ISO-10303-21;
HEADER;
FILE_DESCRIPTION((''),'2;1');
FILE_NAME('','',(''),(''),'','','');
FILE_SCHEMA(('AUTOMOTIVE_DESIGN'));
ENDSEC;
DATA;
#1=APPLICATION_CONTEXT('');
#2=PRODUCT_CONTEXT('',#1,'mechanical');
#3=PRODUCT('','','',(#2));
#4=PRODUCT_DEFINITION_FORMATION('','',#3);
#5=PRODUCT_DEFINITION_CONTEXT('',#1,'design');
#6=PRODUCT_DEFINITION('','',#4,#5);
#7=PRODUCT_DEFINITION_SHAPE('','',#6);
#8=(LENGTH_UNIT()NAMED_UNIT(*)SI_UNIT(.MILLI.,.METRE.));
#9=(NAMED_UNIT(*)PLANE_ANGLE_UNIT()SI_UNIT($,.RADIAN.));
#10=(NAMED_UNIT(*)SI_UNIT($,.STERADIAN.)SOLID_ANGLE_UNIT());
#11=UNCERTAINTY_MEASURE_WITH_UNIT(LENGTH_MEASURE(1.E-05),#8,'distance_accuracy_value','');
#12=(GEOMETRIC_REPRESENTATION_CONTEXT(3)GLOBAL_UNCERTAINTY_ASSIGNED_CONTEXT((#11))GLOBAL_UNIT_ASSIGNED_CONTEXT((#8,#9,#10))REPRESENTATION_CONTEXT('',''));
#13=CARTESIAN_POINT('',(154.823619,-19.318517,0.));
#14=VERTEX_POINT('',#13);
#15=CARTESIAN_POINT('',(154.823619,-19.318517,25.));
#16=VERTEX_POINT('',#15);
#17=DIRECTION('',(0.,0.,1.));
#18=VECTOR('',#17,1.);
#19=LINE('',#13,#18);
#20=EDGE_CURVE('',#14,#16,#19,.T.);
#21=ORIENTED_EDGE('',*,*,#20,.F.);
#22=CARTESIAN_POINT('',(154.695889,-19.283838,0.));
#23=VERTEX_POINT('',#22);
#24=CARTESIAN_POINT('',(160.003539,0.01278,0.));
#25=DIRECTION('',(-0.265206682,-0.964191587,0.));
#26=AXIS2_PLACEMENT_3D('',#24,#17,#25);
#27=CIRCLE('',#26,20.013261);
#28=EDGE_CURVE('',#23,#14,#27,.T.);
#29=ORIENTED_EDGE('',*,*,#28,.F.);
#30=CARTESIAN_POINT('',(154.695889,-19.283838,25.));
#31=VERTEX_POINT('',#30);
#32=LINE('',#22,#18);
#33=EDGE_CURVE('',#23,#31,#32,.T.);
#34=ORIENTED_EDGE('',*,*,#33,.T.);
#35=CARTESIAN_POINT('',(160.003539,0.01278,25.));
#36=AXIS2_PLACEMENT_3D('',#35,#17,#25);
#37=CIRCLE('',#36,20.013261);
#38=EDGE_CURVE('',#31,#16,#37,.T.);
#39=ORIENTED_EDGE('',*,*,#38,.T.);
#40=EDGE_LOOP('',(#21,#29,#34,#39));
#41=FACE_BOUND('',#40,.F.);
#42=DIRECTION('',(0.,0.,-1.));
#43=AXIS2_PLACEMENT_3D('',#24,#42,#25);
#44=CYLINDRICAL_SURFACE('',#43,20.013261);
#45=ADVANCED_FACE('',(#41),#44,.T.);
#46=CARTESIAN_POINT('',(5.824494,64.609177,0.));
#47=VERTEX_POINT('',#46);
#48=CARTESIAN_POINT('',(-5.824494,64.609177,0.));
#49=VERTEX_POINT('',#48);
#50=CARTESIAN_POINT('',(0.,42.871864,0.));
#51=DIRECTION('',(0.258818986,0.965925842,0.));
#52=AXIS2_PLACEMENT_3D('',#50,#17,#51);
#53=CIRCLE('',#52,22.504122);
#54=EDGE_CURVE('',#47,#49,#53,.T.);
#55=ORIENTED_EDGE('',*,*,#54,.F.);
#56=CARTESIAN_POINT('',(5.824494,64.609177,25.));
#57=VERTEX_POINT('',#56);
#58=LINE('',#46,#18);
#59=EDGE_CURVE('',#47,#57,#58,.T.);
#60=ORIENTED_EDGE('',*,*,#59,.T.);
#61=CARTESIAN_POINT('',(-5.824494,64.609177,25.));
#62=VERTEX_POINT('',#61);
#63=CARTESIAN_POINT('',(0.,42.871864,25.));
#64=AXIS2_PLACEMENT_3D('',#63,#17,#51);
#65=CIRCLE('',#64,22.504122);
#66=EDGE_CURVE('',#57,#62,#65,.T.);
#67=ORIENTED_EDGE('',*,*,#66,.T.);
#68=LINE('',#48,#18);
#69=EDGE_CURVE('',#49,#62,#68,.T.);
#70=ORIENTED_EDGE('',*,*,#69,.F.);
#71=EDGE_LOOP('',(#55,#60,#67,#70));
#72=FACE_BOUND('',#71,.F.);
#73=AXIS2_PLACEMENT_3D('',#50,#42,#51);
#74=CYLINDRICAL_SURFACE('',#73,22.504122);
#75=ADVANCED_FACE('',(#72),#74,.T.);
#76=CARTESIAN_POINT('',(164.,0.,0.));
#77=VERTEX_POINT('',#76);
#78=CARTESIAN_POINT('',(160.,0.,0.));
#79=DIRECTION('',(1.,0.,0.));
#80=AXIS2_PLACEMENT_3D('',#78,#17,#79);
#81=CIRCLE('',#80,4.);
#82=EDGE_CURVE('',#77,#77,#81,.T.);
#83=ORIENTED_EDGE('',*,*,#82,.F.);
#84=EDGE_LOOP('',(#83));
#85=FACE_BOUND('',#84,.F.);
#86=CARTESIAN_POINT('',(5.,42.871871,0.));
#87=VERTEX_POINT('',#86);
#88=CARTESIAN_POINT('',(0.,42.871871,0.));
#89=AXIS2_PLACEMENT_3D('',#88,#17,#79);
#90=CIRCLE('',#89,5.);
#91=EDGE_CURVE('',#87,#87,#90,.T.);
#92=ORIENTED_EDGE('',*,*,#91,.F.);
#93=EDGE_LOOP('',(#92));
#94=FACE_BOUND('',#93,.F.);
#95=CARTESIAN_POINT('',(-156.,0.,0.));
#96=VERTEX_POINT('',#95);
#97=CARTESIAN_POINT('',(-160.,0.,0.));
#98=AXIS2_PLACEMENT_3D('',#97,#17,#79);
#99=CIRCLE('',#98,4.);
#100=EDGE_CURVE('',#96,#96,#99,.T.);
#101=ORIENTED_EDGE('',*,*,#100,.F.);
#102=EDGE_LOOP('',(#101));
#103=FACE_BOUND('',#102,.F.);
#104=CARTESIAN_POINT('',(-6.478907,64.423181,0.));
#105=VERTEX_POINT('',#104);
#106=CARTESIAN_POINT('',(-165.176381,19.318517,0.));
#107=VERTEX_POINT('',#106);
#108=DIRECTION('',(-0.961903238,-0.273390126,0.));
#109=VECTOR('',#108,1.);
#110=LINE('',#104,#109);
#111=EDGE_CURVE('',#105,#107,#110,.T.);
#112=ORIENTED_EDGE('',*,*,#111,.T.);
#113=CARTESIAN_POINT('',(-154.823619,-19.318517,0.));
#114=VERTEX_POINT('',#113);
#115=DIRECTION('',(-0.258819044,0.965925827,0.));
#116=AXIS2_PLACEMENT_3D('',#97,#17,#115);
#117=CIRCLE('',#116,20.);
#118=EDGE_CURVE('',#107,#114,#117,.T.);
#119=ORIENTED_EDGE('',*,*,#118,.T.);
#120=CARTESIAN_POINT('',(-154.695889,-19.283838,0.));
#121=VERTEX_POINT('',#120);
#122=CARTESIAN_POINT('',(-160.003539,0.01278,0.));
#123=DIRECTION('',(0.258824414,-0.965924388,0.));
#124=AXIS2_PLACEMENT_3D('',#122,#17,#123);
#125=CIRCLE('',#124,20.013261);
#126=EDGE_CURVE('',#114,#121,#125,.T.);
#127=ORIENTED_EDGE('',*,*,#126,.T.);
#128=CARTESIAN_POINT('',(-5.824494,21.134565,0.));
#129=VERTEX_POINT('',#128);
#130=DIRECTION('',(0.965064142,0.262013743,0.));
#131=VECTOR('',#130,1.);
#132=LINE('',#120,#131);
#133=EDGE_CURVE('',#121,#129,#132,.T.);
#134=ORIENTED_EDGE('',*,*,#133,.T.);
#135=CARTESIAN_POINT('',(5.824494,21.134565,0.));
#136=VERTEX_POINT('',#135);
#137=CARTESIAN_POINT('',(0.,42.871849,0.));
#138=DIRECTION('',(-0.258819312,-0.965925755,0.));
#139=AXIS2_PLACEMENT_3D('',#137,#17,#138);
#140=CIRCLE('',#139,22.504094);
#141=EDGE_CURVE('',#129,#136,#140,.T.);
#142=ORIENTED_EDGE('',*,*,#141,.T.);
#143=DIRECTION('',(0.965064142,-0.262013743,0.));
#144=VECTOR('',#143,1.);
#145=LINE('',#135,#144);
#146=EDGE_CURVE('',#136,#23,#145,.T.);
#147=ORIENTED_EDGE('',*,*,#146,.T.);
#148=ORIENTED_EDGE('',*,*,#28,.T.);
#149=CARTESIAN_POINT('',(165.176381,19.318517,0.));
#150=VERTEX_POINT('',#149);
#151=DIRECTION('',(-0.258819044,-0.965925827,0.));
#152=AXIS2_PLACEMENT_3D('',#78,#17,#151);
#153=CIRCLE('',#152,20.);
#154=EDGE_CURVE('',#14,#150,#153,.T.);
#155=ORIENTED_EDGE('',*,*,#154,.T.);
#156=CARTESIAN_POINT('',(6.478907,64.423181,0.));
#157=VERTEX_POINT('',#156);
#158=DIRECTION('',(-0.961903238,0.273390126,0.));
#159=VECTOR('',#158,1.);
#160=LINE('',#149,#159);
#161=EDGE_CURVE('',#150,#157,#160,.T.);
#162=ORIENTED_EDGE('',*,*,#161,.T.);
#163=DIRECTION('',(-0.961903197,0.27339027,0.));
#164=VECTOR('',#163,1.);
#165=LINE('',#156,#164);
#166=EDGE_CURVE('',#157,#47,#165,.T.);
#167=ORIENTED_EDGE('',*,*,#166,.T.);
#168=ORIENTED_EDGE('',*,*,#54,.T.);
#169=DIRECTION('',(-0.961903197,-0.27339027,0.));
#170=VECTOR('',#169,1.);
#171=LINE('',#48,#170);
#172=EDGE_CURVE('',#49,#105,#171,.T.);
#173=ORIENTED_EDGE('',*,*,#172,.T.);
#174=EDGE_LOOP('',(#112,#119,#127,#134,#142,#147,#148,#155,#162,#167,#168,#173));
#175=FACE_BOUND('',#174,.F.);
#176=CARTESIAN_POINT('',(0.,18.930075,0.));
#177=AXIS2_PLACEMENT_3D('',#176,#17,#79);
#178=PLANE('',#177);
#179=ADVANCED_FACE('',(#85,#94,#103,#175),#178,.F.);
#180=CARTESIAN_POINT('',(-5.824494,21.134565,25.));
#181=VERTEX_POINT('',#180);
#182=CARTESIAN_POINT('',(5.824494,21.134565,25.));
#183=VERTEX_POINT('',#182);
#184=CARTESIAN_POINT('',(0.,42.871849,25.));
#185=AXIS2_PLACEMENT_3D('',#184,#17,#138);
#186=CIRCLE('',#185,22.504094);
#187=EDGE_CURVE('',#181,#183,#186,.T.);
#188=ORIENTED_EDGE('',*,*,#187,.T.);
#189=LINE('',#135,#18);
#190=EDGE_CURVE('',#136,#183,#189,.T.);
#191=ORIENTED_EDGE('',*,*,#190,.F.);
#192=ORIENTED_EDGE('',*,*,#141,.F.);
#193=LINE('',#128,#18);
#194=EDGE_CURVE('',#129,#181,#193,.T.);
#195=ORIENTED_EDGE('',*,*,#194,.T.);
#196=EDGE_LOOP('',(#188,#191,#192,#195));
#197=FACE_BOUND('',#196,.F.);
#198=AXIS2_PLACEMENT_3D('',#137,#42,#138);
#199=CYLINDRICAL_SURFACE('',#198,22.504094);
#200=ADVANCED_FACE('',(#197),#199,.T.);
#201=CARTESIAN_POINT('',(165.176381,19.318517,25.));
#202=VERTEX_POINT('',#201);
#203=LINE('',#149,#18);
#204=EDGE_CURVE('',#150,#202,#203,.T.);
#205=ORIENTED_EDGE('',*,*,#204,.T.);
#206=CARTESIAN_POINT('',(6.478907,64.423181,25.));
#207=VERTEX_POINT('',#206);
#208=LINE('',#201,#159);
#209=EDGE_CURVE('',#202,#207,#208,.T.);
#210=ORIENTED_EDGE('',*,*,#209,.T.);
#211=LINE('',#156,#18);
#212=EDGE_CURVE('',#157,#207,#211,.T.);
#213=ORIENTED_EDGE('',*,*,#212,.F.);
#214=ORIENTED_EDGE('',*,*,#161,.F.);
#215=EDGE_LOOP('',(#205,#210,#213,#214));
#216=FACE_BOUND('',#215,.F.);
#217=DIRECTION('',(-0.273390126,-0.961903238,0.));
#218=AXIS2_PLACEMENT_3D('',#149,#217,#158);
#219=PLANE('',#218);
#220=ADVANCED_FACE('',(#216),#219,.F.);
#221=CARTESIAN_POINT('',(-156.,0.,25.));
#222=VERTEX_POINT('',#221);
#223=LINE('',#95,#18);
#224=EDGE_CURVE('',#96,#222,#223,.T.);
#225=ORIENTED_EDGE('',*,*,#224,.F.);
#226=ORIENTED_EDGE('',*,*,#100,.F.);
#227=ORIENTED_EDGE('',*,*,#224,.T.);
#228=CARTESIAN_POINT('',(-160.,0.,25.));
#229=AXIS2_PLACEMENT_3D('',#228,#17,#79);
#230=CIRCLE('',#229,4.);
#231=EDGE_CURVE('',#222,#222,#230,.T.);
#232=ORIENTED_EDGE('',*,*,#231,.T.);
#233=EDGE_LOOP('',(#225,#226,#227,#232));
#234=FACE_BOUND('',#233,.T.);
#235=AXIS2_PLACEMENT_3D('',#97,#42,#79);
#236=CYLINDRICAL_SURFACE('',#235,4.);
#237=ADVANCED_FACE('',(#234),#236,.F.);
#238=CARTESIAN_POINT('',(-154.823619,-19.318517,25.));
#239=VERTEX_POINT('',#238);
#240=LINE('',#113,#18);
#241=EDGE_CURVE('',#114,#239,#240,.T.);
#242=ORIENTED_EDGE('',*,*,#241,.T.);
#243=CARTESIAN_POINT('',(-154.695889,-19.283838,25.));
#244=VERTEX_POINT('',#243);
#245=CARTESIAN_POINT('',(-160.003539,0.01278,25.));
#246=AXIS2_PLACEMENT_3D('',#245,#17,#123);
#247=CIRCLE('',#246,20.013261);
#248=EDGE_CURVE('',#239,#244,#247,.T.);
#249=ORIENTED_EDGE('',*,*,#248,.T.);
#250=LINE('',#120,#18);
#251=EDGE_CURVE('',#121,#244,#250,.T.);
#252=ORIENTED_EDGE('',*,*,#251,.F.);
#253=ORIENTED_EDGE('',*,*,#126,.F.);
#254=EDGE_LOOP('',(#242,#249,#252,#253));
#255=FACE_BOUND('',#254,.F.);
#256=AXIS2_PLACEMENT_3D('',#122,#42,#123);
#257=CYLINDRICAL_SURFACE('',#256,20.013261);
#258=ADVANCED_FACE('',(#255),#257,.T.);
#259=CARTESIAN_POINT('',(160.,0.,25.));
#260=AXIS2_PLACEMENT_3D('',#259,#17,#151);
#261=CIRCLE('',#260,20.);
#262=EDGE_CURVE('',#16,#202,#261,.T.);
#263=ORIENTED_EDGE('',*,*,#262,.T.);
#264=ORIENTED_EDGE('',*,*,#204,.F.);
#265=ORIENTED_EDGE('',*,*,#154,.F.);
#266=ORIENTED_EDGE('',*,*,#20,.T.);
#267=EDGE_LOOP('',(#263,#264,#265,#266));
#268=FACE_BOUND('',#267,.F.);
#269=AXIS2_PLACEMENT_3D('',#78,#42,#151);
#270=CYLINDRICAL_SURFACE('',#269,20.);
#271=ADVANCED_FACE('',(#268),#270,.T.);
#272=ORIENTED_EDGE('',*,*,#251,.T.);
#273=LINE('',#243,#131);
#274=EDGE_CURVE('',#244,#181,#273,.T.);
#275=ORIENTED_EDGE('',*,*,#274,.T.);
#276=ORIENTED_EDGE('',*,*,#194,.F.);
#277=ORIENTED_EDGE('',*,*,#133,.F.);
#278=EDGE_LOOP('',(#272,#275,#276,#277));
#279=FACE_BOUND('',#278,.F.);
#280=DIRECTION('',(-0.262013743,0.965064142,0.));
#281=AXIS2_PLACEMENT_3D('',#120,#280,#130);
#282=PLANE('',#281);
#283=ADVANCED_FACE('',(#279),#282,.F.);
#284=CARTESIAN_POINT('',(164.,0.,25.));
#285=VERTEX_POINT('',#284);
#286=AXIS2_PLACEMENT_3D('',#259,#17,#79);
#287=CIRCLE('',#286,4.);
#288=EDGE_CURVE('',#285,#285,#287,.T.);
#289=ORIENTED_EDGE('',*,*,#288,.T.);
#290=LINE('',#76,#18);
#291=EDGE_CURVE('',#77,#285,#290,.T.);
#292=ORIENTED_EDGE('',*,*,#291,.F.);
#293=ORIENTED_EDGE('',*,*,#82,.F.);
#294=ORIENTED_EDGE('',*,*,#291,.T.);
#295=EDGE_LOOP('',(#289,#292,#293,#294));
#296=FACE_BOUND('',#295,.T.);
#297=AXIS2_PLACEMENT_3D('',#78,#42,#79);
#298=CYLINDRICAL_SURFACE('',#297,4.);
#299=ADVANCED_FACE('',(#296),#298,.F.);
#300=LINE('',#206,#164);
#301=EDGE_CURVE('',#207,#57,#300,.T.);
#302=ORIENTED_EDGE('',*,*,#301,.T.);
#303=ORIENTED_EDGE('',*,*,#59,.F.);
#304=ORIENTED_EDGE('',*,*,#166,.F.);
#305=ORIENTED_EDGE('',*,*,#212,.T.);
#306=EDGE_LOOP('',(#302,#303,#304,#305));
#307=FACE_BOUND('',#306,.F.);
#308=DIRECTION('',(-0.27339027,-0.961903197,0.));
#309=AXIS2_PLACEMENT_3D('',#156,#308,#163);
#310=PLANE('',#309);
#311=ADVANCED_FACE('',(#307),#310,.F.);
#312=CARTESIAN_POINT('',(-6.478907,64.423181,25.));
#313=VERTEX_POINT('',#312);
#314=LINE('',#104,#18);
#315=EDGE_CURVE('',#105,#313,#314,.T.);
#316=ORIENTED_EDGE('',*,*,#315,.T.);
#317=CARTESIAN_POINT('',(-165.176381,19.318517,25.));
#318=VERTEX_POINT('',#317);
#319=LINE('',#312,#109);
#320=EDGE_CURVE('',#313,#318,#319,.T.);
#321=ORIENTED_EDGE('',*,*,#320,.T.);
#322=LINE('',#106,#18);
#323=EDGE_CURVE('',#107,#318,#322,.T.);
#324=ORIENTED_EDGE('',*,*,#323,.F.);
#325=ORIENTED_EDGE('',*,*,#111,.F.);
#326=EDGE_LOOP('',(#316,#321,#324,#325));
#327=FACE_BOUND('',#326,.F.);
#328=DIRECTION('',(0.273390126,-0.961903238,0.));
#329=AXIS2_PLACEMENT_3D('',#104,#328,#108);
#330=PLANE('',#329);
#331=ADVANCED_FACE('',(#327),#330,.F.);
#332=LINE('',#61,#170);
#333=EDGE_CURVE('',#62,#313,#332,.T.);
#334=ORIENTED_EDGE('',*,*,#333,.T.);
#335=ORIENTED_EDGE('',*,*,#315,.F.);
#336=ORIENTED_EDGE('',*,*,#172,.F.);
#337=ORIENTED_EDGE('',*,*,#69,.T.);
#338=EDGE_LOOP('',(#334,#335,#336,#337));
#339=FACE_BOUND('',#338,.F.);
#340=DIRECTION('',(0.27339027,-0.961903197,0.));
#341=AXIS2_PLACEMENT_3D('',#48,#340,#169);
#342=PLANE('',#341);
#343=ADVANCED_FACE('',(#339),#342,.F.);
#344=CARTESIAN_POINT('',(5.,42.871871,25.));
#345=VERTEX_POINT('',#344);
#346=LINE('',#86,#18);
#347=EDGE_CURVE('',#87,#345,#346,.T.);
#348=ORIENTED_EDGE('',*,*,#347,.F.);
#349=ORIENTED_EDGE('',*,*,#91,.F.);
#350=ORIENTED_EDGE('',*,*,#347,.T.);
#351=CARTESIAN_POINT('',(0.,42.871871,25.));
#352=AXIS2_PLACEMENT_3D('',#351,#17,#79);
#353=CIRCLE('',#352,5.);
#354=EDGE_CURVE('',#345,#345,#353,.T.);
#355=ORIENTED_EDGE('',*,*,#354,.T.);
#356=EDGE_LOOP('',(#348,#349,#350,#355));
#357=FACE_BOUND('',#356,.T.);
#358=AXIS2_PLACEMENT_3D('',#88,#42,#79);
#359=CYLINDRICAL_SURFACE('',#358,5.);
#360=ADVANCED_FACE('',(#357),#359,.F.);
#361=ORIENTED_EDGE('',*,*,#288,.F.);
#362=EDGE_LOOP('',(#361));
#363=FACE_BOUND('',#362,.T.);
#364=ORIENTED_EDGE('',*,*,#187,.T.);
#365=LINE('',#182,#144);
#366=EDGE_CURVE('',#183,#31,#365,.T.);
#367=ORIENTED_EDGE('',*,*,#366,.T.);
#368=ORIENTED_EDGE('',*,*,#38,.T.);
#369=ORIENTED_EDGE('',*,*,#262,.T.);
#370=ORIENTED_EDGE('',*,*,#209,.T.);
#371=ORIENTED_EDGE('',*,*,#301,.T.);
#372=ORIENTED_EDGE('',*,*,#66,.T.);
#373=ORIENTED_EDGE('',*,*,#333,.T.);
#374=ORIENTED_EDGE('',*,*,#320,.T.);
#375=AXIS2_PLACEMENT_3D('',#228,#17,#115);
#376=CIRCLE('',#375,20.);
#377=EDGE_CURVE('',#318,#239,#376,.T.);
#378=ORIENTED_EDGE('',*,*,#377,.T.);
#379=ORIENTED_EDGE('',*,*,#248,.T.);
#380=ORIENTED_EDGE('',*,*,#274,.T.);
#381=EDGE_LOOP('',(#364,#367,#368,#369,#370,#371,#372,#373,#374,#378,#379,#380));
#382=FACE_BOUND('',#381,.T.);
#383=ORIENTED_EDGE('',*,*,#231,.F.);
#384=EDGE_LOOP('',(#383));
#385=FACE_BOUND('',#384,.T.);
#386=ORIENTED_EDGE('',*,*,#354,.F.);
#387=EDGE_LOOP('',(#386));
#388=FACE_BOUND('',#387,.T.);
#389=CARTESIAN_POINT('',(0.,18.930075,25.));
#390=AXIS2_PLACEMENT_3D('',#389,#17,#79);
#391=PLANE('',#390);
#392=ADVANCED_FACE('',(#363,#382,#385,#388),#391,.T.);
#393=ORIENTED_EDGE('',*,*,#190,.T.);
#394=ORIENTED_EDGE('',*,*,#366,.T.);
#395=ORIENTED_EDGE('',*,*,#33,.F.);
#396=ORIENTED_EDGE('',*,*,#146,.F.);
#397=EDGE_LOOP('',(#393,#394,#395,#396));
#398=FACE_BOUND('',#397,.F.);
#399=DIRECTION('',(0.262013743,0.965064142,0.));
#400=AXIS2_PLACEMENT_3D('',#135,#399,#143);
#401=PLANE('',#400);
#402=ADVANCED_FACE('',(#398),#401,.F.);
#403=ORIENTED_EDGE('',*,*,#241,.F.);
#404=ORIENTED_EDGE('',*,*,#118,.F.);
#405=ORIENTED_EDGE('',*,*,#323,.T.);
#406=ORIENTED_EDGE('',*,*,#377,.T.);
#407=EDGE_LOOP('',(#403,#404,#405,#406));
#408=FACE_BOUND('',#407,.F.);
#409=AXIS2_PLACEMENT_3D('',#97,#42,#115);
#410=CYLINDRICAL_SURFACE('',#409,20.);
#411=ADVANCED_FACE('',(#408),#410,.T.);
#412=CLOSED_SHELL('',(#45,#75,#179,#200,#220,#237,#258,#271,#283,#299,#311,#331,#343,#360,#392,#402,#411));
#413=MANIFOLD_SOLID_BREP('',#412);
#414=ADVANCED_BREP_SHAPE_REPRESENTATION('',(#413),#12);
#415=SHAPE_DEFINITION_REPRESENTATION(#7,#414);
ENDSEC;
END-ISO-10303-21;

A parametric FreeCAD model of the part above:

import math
import FreeCAD as App
import Part
import Sketcher
from FreeCAD import Vector
Q = App.Units.Quantity

doc = App.newDocument("Part")
body = doc.addObject("PartDesign::Body", "Body")

sketch1 = body.newObject("Sketcher::SketchObject", "Sketch")
sketch1.AttachmentSupport = (doc.getObject("XY_Plane"), [""])
sketch1.MapMode = "FlatFace"
sketch1.addGeometry([
    Part.LineSegment(Vector(-6.478907, 64.423181, 0), Vector(-165.176381, 19.318517, 0)),
    Part.ArcOfCircle(Part.Circle(Vector(-160, 0, 0), Vector(0, 0, 1), 20), math.radians(105), math.radians(285)),
    Part.ArcOfCircle(Part.Circle(Vector(-160.003539, 0.01278, 0), Vector(0, 0, 1), 20.013261), math.radians(-74.999682), math.radians(-74.620766)),
    Part.LineSegment(Vector(-154.695889, -19.283838, 0), Vector(-5.824494, 21.134565, 0)),
    Part.ArcOfCircle(Part.Circle(Vector(0, 42.871849, 0), Vector(0, 0, 1), 22.504094), math.radians(-105.000016), math.radians(-74.999984)),
    Part.LineSegment(Vector(5.824494, 21.134565, 0), Vector(154.695889, -19.283838, 0)),
    Part.ArcOfCircle(Part.Circle(Vector(160.003539, 0.01278, 0), Vector(0, 0, 1), 20.013261), math.radians(-105.379234), math.radians(-105.000318)),
    Part.ArcOfCircle(Part.Circle(Vector(160, 0, 0), Vector(0, 0, 1), 20), math.radians(-105), math.radians(75)),
    Part.LineSegment(Vector(165.176381, 19.318517, 0), Vector(6.478907, 64.423181, 0)),
    Part.LineSegment(Vector(6.478907, 64.423181, 0), Vector(5.824494, 64.609177, 0)),
    Part.ArcOfCircle(Part.Circle(Vector(0, 42.871864, 0), Vector(0, 0, 1), 22.504122), math.radians(75.000004), math.radians(104.999996)),
    Part.LineSegment(Vector(-5.824494, 64.609177, 0), Vector(-6.478907, 64.423181, 0)),
    Part.Circle(Vector(-160, 0, 0), Vector(0, 0, 1), 4),
    Part.Circle(Vector(160, 0, 0), Vector(0, 0, 1), 4),
    Part.Circle(Vector(0, 42.871871, 0), Vector(0, 0, 1), 5),
], False)
sketch1.addConstraint([
    Sketcher.Constraint("Coincident", 0, 2, 1, 1),
    Sketcher.Constraint("Coincident", 1, 2, 2, 1),
    Sketcher.Constraint("Coincident", 2, 2, 3, 1),
    Sketcher.Constraint("Coincident", 3, 2, 4, 1),
    Sketcher.Constraint("Coincident", 4, 2, 5, 1),
    Sketcher.Constraint("Coincident", 5, 2, 6, 1),
    Sketcher.Constraint("Coincident", 6, 2, 7, 1),
    Sketcher.Constraint("Coincident", 7, 2, 8, 1),
    Sketcher.Constraint("Coincident", 8, 2, 9, 1),
    Sketcher.Constraint("Coincident", 9, 2, 10, 1),
    Sketcher.Constraint("Coincident", 10, 2, 11, 1),
    Sketcher.Constraint("Coincident", 11, 2, 0, 1),
    Sketcher.Constraint("Coincident", 12, 3, 1, 3),
    Sketcher.Constraint("Coincident", 13, 3, 7, 3),
    Sketcher.Constraint("Coincident", 14, 3, 10, 3),
    Sketcher.Constraint("Equal", 2, 6),
    Sketcher.Constraint("Equal", 1, 7),
    Sketcher.Constraint("Equal", 12, 13),
    Sketcher.Constraint("Symmetric", 1, 3, 7, 3, -1, 1),
    Sketcher.Constraint("Symmetric", 2, 3, 6, 3, -2),
    Sketcher.Constraint("Symmetric", 3, 2, 4, 2, -2),
    Sketcher.Constraint("Symmetric", 9, 2, 10, 2, -2),
    Sketcher.Constraint("Symmetric", 8, 2, 11, 2, -2),
    Sketcher.Constraint("Parallel", 8, 9),
    Sketcher.Constraint("Horizontal", 2, 2, 5, 2),
    Sketcher.Constraint("Horizontal", 1, 2, 6, 2),
    Sketcher.Constraint("Horizontal", 0, 2, 7, 2),
    Sketcher.Constraint("Vertical", 4, 2, 9, 2),
    Sketcher.Constraint("Diameter", 12, Q("8 mm")),
    Sketcher.Constraint("Diameter", 14, Q("10 mm")),
    Sketcher.Constraint("Radius", 1, Q("20 mm")),
    Sketcher.Constraint("DistanceX", 1, 3, -1, 1, Q("160 mm")),
    Sketcher.Constraint("Radius", 2, Q("20.013261 mm")),
    Sketcher.Constraint("Radius", 10, Q("22.504122 mm")),
    Sketcher.Constraint("Radius", 4, Q("22.504094 mm")),
    Sketcher.Constraint("DistanceY", 3, 2, 10, 3, Q("21.737299 mm")),
    Sketcher.Constraint("DistanceX", 3, 2, 8, 2, Q("12.303401 mm")),
    Sketcher.Constraint("Distance", 9, Q("0.680331 mm")),
    Sketcher.Constraint("DistanceX", 2, 3, -1, 1, Q("160.003539 mm")),
    Sketcher.Constraint("DistanceY", -1, 1, 4, 3, Q("42.871849 mm")),
    Sketcher.Constraint("DistanceX", 0, 2, -1, 1, Q("165.176381 mm")),
    Sketcher.Constraint("DistanceX", 1, 2, -1, 1, Q("154.823619 mm")),
    Sketcher.Constraint("DistanceX", 2, 2, -1, 1, Q("154.695889 mm")),
])
pad1 = body.newObject("PartDesign::Pad", "Pad")
pad1.Profile = sketch1
pad1.Length = 25

doc.recompute()
